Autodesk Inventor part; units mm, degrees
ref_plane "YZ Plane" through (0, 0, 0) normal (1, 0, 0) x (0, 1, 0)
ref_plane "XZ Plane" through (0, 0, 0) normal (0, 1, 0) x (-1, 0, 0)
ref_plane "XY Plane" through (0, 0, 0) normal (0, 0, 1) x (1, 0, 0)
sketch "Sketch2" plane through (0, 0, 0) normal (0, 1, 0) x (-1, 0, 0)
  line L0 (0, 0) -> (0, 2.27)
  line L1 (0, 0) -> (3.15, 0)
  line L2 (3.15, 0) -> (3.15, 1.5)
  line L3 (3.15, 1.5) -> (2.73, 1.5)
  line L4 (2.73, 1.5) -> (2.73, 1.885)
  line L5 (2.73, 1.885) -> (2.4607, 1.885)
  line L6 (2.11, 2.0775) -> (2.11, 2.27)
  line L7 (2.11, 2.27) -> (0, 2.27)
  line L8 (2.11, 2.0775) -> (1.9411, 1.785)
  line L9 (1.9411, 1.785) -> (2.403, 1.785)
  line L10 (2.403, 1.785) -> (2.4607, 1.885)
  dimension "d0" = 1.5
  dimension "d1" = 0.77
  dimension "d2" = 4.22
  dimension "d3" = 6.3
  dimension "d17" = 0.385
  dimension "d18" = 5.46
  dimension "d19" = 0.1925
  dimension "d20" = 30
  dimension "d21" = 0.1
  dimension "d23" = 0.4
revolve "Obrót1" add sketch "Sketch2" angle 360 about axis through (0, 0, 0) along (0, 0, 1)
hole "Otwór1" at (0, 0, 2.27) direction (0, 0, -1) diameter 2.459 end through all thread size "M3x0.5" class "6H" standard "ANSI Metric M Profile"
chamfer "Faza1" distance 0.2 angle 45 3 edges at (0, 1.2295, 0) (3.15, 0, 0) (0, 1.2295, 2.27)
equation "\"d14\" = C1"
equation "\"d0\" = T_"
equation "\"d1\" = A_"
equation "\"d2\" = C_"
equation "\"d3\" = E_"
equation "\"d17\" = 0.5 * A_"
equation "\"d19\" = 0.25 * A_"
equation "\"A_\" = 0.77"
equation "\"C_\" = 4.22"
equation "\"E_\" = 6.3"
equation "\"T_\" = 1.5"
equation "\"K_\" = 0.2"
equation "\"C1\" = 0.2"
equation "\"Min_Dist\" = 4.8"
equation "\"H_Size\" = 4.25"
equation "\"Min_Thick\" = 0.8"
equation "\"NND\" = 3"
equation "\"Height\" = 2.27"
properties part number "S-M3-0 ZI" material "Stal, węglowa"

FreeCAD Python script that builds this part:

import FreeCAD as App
import Part
import Sketcher

V = App.Vector


def edges_at(feature, points):
    """Names of the edges that pass closest to the given points."""
    edges = feature.Shape.Edges
    near = lambda p: min(range(len(edges)), key=lambda i: edges[i].distToShape(Part.Vertex(*p))[0])
    return sorted({f"Edge{near(p) + 1}" for p in points})


def add_polygon(sketch, points):
    """Adds a closed chain of lines whose ends are joined by coincident constraints."""
    first, n = sketch.GeometryCount, len(points)
    for a, b in zip(points, points[1:] + points[:1]):
        sketch.addGeometry(Part.LineSegment(App.Vector(*a, 0), App.Vector(*b, 0)), False)
    for i in range(n):
        sketch.addConstraint(Sketcher.Constraint("Coincident", first + i, 2, first + (i + 1) % n, 1))

doc = App.newDocument("Part")
body = doc.addObject("PartDesign::Body", "Body")

# Sketch on XZ plane
sketch1 = body.newObject("Sketcher::SketchObject", "Sketch")
sketch1.AttachmentSupport = (doc.getObject("XZ_Plane"), [""])
sketch1.MapMode = "FlatFace"
add_polygon(sketch1, [(0, 2.27), (0, 0), (-3.15, 0), (-3.15, 1.5), (-2.73, 1.5), (-2.73, 1.89), (-2.46, 1.89), (-2.4, 1.78), (-1.94, 1.78), (-2.11, 2.08), (-2.11, 2.27)])  # lines 0-10
sketch1.addConstraint([
    Sketcher.Constraint("Vertical", 0),
    Sketcher.Constraint("Horizontal", 1),
    Sketcher.Constraint("Vertical", 2),
    Sketcher.Constraint("Horizontal", 3),
    Sketcher.Constraint("Vertical", 4),
    Sketcher.Constraint("Horizontal", 5),
    Sketcher.Constraint("Horizontal", 7),
    Sketcher.Constraint("Vertical", 9),
    Sketcher.Constraint("Horizontal", 10),
    Sketcher.Constraint("Coincident", 0, 2, -1, 1),
    Sketcher.Constraint("Parallel", 6, 8),
    Sketcher.Constraint("DistanceY", 2, 1, 2, 2, 1.5),
    Sketcher.Constraint("DistanceY", 6, 2, 5, 2, 0.1),
    Sketcher.Constraint("DistanceY", 4, 1, 4, 2, 0.385),
    Sketcher.Constraint("DistanceY", 9, 1, 9, 2, 0.1925),
    Sketcher.Constraint("DistanceY", 5, 2, 9, 2, 0.385),
    Sketcher.Constraint("DistanceX", 1, 2, 1, 1, 3.15),
    Sketcher.Constraint("DistanceX", 3, 1, 3, 2, 0.42),
    Sketcher.Constraint("DistanceX", 10, 1, 10, 2, 2.11),
    Sketcher.Constraint("DistanceX", 7, 1, 7, 2, 0.462),
    Sketcher.Constraint("DistanceX", 5, 1, 5, 2, 0.2693),
])
revolution = body.newObject("PartDesign::Revolution", "Revolution")
revolution.Profile = sketch1
revolution.ReferenceAxis = (sketch1, ["V_Axis"])
revolution.Angle = 360

# Sketch on XY plane
sketch2 = body.newObject("Sketcher::SketchObject", "Sketch001")
sketch2.AttachmentSupport = (doc.getObject("XY_Plane"), [""])
sketch2.MapMode = "FlatFace"
sketch2.AttachmentOffset = App.Placement(V(0, 0, 2.27), App.Rotation())
sketch2.addGeometry(Part.Circle(V(0, 0, 0), V(0, 0, 1), 1.2), False)
sketch2.addConstraint([
    Sketcher.Constraint("Coincident", 0, 3, -1, 1),
    Sketcher.Constraint("Diameter", 0, 2.459),
])
doc.recompute()
hole = body.newObject("PartDesign::Hole", "Hole")
hole.Profile = sketch2
hole.ThreadType = "None"
hole.Diameter = 2.459
hole.DepthType = "ThroughAll"
doc.recompute()

chamfer = body.newObject("PartDesign::Chamfer", "Chamfer")
chamfer.Base = (hole, edges_at(hole, [(0, 1.23, 0), (3.15, 0, 0), (0, 1.23, 2.27)]))
chamfer.Size = 0.2

doc.recompute()
